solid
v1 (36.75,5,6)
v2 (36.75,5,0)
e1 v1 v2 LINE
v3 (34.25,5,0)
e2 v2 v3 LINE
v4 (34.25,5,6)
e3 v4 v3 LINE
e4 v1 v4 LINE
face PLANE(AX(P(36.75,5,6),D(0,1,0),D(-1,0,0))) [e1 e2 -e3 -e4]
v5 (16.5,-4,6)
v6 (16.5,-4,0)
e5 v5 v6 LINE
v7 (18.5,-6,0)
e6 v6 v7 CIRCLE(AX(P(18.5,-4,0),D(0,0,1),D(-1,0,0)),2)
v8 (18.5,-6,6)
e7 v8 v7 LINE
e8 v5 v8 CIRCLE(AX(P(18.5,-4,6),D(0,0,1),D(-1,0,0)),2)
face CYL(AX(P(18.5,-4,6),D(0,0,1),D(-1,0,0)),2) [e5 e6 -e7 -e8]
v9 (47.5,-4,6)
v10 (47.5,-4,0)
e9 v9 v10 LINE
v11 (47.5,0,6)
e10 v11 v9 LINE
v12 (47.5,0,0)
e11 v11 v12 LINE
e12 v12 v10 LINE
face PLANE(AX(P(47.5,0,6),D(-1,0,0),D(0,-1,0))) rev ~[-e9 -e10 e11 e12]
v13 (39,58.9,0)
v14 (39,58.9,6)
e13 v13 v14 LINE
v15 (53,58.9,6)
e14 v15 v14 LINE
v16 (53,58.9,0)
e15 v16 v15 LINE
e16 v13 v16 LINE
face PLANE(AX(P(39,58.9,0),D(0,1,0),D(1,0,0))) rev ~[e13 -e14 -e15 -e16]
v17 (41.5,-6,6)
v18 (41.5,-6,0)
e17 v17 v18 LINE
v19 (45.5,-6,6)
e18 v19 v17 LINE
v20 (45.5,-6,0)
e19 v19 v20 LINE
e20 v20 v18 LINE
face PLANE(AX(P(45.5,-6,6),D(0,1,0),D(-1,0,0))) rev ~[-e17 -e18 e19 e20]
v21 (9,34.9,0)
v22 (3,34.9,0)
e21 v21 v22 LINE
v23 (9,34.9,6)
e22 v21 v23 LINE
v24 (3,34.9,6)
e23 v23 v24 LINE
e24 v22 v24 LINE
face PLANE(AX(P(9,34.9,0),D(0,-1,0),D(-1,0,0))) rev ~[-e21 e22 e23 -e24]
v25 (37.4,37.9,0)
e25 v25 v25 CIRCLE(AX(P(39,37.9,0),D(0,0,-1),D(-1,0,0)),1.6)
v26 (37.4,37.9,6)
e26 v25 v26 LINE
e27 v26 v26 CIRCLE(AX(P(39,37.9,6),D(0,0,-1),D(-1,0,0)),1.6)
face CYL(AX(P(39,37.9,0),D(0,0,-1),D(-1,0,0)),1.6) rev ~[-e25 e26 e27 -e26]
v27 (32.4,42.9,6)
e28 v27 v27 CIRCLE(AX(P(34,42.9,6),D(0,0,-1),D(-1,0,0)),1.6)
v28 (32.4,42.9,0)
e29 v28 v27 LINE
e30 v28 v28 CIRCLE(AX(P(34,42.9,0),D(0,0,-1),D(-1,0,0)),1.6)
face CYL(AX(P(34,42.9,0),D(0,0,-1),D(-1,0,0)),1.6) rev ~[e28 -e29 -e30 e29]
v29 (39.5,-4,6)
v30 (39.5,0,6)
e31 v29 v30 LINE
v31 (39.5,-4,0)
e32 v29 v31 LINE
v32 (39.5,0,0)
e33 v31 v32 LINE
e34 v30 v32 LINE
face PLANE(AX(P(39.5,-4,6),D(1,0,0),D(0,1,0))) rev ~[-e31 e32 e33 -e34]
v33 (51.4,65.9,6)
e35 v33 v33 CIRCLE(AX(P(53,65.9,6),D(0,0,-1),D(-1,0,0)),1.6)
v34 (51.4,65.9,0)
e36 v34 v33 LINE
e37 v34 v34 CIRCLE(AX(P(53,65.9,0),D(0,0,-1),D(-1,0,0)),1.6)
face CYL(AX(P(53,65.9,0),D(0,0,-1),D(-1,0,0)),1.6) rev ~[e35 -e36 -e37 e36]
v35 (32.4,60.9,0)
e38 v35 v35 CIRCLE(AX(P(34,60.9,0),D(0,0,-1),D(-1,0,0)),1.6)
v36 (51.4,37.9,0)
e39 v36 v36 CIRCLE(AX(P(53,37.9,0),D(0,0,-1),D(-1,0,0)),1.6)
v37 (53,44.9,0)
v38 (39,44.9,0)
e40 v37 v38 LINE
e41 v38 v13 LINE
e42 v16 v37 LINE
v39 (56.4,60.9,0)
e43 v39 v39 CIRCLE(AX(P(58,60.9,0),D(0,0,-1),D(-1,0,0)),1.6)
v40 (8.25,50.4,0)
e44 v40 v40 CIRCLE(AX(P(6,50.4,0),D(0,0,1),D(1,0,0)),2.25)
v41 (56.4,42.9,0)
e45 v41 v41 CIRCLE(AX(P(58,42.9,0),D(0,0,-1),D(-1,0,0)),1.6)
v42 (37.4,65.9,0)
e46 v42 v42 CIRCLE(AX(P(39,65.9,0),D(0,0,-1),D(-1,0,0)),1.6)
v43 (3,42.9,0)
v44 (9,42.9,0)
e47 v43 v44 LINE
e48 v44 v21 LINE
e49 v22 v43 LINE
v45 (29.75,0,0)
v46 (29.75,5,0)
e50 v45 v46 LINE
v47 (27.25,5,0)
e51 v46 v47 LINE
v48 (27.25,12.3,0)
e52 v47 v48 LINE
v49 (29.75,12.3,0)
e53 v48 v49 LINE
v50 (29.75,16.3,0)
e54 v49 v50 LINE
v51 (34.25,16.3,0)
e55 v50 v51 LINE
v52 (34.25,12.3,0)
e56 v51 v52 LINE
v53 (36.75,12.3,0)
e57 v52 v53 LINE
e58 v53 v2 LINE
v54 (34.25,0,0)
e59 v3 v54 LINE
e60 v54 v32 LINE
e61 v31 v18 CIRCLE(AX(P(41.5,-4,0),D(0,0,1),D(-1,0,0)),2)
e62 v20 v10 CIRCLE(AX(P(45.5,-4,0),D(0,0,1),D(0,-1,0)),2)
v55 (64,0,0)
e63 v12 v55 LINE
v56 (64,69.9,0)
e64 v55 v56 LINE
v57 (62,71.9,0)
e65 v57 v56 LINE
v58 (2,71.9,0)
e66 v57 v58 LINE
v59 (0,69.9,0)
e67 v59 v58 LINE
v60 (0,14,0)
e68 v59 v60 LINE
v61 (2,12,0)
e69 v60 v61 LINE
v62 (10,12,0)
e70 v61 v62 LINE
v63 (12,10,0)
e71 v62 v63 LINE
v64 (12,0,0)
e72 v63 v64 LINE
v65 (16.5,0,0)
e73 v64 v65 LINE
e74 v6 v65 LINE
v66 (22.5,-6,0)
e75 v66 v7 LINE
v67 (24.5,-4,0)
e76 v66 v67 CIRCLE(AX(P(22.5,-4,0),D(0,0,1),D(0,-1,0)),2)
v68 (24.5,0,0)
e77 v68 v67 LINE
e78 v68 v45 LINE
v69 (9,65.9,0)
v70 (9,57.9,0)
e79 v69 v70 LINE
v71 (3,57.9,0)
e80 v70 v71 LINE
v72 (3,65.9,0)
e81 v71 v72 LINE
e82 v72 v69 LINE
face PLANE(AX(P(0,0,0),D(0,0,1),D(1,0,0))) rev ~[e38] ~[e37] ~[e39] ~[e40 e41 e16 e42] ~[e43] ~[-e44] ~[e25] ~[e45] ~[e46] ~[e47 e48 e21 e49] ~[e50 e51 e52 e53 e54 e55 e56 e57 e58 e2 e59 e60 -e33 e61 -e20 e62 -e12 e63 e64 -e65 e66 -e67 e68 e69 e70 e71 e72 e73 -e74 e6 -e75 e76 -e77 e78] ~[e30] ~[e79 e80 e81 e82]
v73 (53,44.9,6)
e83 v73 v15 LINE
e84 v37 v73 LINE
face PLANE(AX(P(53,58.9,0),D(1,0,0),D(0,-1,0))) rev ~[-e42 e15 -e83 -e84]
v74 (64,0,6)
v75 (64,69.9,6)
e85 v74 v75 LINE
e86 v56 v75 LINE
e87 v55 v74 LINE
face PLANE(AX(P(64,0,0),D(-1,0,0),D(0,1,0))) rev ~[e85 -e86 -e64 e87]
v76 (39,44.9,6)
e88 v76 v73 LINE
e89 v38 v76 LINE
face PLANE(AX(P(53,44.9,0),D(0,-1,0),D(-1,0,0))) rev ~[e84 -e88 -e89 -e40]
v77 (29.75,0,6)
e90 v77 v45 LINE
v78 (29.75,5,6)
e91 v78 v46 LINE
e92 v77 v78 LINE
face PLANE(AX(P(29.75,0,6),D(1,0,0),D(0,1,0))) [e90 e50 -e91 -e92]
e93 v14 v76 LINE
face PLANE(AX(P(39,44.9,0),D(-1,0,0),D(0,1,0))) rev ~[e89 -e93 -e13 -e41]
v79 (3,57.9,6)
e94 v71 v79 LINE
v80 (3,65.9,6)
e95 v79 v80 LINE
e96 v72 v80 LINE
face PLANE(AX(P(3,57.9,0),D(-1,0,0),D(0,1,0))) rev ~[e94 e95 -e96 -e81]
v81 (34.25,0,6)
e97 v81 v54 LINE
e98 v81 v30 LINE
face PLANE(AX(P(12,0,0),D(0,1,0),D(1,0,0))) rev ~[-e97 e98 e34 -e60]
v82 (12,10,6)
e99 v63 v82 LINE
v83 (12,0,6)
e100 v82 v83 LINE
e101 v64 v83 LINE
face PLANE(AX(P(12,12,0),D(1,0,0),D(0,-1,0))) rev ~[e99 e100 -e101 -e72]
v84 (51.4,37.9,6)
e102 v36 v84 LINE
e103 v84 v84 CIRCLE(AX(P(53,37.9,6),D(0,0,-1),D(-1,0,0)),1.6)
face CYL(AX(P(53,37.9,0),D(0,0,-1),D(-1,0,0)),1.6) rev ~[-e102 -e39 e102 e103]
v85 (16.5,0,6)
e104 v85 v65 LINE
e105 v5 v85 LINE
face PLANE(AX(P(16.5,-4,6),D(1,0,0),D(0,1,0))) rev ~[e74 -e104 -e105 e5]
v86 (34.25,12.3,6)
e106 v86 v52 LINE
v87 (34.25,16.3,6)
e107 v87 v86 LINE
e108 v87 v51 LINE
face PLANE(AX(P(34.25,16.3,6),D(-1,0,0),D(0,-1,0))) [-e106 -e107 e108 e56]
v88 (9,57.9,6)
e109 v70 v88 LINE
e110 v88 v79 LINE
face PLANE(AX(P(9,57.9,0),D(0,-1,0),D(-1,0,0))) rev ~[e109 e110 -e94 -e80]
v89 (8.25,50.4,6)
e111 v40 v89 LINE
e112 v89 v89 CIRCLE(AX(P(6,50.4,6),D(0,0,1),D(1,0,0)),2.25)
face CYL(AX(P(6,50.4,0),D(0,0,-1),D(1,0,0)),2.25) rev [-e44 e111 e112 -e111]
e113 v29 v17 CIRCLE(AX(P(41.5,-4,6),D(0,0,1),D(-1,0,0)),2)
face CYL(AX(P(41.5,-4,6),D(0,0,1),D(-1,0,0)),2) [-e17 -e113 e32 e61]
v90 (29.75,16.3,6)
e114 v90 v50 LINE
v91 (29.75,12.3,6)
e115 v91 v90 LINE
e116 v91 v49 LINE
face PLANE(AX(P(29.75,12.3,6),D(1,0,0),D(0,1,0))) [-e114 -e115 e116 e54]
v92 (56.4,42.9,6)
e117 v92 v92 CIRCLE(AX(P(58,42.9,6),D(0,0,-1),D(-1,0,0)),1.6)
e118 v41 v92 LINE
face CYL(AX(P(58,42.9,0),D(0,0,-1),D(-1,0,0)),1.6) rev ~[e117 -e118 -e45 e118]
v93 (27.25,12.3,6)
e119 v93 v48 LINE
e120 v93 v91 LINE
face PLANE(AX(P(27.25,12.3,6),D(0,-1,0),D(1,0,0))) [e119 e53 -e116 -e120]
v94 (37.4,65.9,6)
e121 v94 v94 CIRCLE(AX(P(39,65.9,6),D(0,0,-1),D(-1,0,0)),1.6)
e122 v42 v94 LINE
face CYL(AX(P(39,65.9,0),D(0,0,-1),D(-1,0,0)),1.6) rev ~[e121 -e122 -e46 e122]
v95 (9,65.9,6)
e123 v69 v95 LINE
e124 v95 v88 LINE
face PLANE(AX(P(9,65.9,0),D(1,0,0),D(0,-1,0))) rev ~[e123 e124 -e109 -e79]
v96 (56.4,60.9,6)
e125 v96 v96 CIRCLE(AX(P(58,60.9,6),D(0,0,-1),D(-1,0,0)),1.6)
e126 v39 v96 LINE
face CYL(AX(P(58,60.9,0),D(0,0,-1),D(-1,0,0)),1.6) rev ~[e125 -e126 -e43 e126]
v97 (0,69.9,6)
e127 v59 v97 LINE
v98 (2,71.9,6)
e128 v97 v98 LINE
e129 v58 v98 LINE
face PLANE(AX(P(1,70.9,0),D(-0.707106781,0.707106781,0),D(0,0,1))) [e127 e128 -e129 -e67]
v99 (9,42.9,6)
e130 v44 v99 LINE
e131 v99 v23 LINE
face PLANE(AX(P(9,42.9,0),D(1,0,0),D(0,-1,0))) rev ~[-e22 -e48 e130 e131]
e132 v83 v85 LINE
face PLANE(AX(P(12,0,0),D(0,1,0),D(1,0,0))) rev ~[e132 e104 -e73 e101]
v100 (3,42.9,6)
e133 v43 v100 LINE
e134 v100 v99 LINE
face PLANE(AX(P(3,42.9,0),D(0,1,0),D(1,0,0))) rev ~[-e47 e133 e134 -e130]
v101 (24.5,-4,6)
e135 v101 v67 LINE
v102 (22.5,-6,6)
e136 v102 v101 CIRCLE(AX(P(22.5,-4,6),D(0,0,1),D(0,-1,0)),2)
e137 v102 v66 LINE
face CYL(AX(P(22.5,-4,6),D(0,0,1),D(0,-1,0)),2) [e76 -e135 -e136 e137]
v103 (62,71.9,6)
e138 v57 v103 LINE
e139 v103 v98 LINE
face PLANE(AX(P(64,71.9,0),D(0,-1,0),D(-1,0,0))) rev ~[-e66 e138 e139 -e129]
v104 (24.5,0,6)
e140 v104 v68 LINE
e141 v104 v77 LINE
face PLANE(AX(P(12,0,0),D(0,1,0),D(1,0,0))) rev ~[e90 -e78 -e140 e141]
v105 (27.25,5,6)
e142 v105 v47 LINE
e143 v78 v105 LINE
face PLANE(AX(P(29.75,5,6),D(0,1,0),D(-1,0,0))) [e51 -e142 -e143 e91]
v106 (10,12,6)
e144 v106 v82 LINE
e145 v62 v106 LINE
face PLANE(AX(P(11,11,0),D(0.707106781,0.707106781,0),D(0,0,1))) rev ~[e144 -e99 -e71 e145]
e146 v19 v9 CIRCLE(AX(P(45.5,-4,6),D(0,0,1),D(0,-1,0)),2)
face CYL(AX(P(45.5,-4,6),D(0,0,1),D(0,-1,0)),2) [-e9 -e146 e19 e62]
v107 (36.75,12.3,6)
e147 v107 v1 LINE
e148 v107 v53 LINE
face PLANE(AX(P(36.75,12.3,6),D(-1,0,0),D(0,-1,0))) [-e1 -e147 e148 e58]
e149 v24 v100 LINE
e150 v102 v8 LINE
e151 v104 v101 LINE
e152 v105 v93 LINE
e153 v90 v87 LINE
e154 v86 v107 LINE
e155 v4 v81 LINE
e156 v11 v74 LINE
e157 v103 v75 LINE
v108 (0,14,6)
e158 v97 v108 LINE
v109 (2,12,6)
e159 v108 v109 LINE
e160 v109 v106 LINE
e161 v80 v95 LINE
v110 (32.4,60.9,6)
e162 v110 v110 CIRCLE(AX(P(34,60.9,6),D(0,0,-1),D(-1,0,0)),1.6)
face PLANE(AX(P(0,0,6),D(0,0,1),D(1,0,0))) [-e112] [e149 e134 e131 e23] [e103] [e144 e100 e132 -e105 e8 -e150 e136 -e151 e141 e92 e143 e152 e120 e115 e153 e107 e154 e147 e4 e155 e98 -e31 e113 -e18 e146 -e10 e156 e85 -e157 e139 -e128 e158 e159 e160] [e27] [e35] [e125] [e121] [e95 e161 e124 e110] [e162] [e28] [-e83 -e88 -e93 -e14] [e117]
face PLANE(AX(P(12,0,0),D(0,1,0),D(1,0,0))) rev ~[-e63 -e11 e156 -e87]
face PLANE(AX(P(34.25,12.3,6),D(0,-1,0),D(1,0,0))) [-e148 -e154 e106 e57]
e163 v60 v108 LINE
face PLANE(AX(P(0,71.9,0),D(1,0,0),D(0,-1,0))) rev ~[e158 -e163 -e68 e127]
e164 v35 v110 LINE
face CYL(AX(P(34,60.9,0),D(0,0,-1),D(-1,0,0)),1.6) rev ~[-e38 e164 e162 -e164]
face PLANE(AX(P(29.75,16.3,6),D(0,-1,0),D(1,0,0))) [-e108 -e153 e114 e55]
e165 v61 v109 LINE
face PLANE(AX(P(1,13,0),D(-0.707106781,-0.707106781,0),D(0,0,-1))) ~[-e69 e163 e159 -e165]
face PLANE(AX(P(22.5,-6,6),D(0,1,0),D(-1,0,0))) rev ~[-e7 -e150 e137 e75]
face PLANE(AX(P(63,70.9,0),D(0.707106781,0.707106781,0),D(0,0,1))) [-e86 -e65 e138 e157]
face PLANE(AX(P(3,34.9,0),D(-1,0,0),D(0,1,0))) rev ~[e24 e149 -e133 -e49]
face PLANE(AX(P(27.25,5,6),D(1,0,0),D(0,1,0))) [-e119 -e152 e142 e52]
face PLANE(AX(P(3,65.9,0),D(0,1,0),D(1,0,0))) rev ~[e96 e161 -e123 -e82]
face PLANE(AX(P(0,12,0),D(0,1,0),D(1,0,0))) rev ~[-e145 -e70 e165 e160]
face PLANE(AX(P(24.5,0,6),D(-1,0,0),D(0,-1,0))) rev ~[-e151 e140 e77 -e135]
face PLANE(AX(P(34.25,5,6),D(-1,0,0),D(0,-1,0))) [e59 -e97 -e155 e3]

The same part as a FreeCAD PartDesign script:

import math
import FreeCAD as App
import Part
import Sketcher

V = App.Vector


def edges_at(feature, points):
    """Names of the edges that pass closest to the given points."""
    edges = feature.Shape.Edges
    near = lambda p: min(range(len(edges)), key=lambda i: edges[i].distToShape(Part.Vertex(*p))[0])
    return sorted({f"Edge{near(p) + 1}" for p in points})


def add_polygon(sketch, points):
    """Adds a closed chain of lines whose ends are joined by coincident constraints."""
    first, n = sketch.GeometryCount, len(points)
    for a, b in zip(points, points[1:] + points[:1]):
        sketch.addGeometry(Part.LineSegment(App.Vector(*a, 0), App.Vector(*b, 0)), False)
    for i in range(n):
        sketch.addConstraint(Sketcher.Constraint("Coincident", first + i, 2, first + (i + 1) % n, 1))

doc = App.newDocument("Part")
body = doc.addObject("PartDesign::Body", "Body")

sketch1 = body.newObject("Sketcher::SketchObject", "Sketch")
sketch1.AttachmentSupport = (doc.getObject("XY_Plane"), [""])
sketch1.MapMode = "FlatFace"
add_polygon(sketch1, [(12, 12), (12, 0), (64, 0), (64, 71.9), (0, 71.9), (0, 12)])
add_polygon(sketch1, [(3, 34.9), (3, 42.9), (9, 42.9), (9, 34.9)])
sketch1.addGeometry(Part.Circle(V(6, 50.4, 0), V(0, 0, 1), 2.25), False)
add_polygon(sketch1, [(3, 57.9), (3, 65.9), (9, 65.9), (9, 57.9)])
sketch1.addConstraint([
    Sketcher.Constraint("Vertical", 0),
    Sketcher.Constraint("Horizontal", 1),
    Sketcher.Constraint("Vertical", 2),
    Sketcher.Constraint("Horizontal", 3),
    Sketcher.Constraint("Vertical", 4),
    Sketcher.Constraint("Horizontal", 5),
    Sketcher.Constraint("Vertical", 6),
    Sketcher.Constraint("Horizontal", 7),
    Sketcher.Constraint("Vertical", 8),
    Sketcher.Constraint("Horizontal", 9),
    Sketcher.Constraint("Vertical", 11),
    Sketcher.Constraint("Horizontal", 12),
    Sketcher.Constraint("Vertical", 13),
    Sketcher.Constraint("Horizontal", 14),
    Sketcher.Constraint("PointOnObject", 0, 2, -1),
    Sketcher.Constraint("PointOnObject", 3, 2, -2),
    Sketcher.Constraint("Vertical", 9, 2, 11, 2),
    Sketcher.Constraint("Vertical", 8, 2, 12, 2),
    Sketcher.Constraint("Equal", 5, 0),
    Sketcher.Constraint("Equal", 8, 11),
    Sketcher.Constraint("Diameter", 10, 4.5),
    Sketcher.Constraint("DistanceX", 1, 1, 1, 2, 52.0),
    Sketcher.Constraint("DistanceX", 3, 2, 3, 1, 64.0),
    Sketcher.Constraint("DistanceX", 7, 1, 7, 2, 6.0),
    Sketcher.Constraint("DistanceY", 6, 1, 6, 2, 8.0),
    Sketcher.Constraint("DistanceY", 2, 1, 2, 2, 71.9),
    Sketcher.Constraint("DistanceX", -1, 1, 10, 3, 6.0),
    Sketcher.Constraint("DistanceX", -1, 1, 6, 2, 3.0),
    Sketcher.Constraint("DistanceY", 11, 2, 3, 2, 6.0),
    Sketcher.Constraint("DistanceY", 7, 2, 13, 2, 15.0),
    Sketcher.Constraint("DistanceY", -1, 1, 10, 3, 50.4),
])
pad1 = body.newObject("PartDesign::Pad", "Pad")
pad1.Profile = sketch1
pad1.Length = 6

sketch2 = body.newObject("Sketcher::SketchObject", "Sketch001")
sketch2.AttachmentSupport = (doc.getObject("XY_Plane"), [""])
sketch2.MapMode = "FlatFace"
sketch2.AttachmentOffset = App.Placement(V(0, 0, 6), App.Rotation())
add_polygon(sketch2, [(29.75, 5), (29.75, 0), (34.25, 0), (34.25, 5), (36.75, 5), (36.75, 12.3), (34.25, 12.3), (34.25, 16.3), (29.75, 16.3), (29.75, 12.3), (27.25, 12.3), (27.25, 5)])
sketch2.addConstraint([
    Sketcher.Constraint("Vertical", 0),
    Sketcher.Constraint("Horizontal", 1),
    Sketcher.Constraint("Vertical", 2),
    Sketcher.Constraint("Horizontal", 3),
    Sketcher.Constraint("Vertical", 4),
    Sketcher.Constraint("Horizontal", 5),
    Sketcher.Constraint("Vertical", 6),
    Sketcher.Constraint("Horizontal", 7),
    Sketcher.Constraint("Vertical", 8),
    Sketcher.Constraint("Horizontal", 9),
    Sketcher.Constraint("Vertical", 10),
    Sketcher.Constraint("Horizontal", 11),
    Sketcher.Constraint("PointOnObject", 0, 2, -1),
    Sketcher.Constraint("Horizontal", 5, 2, 8, 2),
    Sketcher.Constraint("Horizontal", 3, 2, 10, 2),
    Sketcher.Constraint("Vertical", 2, 2, 5, 2),
    Sketcher.Constraint("Vertical", 0, 2, 7, 2),
    Sketcher.Constraint("Equal", 5, 9),
    Sketcher.Constraint("DistanceY", 0, 2, 0, 1, 5.0),
    Sketcher.Constraint("DistanceY", 6, 1, 6, 2, 4.0),
    Sketcher.Constraint("DistanceX", 1, 1, 1, 2, 4.5),
    Sketcher.Constraint("DistanceX", 3, 1, 3, 2, 2.5),
    Sketcher.Constraint("DistanceY", 4, 1, 4, 2, 7.3),
    Sketcher.Constraint("DistanceX", -1, 1, 0, 2, 29.75),
])
pocket1 = body.newObject("PartDesign::Pocket", "Pocket")
pocket1.Profile = sketch2
pocket1.Length = 6

sketch3 = body.newObject("Sketcher::SketchObject", "Sketch002")
sketch3.AttachmentSupport = (doc.getObject("XY_Plane"), [""])
sketch3.MapMode = "FlatFace"
sketch3.AttachmentOffset = App.Placement(V(0, 0, 6), App.Rotation())
sketch3.addGeometry([
    Part.LineSegment(V(47.5, 0, 0), V(39.5, 0, 0)),
    Part.LineSegment(V(39.5, 0, 0), V(39.5, -4, 0)),
    Part.ArcOfCircle(Part.Circle(V(41.5, -4, 0), V(0, 0, 1), 2), math.radians(180), math.radians(270)),
    Part.LineSegment(V(41.5, -6, 0), V(45.5, -6, 0)),
    Part.ArcOfCircle(Part.Circle(V(45.5, -4, 0), V(0, 0, 1), 2), math.radians(-90), math.radians(0)),
    Part.LineSegment(V(47.5, -4, 0), V(47.5, 0, 0)),
    Part.LineSegment(V(24.5, 0, 0), V(16.5, 0, 0)),
    Part.LineSegment(V(16.5, 0, 0), V(16.5, -4, 0)),
    Part.ArcOfCircle(Part.Circle(V(18.5, -4, 0), V(0, 0, 1), 2), math.radians(180), math.radians(270)),
    Part.LineSegment(V(18.5, -6, 0), V(22.5, -6, 0)),
    Part.ArcOfCircle(Part.Circle(V(22.5, -4, 0), V(0, 0, 1), 2), math.radians(-90), math.radians(0)),
    Part.LineSegment(V(24.5, -4, 0), V(24.5, 0, 0)),
], False)
sketch3.addConstraint([
    Sketcher.Constraint("Coincident", 0, 2, 1, 1),
    Sketcher.Constraint("Tangent", 1, 2, 2, 1),
    Sketcher.Constraint("Tangent", 2, 2, 3, 1),
    Sketcher.Constraint("Tangent", 3, 2, 4, 1),
    Sketcher.Constraint("Tangent", 4, 2, 5, 1),
    Sketcher.Constraint("Coincident", 5, 2, 0, 1),
    Sketcher.Constraint("Coincident", 6, 2, 7, 1),
    Sketcher.Constraint("Tangent", 7, 2, 8, 1),
    Sketcher.Constraint("Tangent", 8, 2, 9, 1),
    Sketcher.Constraint("Tangent", 9, 2, 10, 1),
    Sketcher.Constraint("Tangent", 10, 2, 11, 1),
    Sketcher.Constraint("Coincident", 11, 2, 6, 1),
    Sketcher.Constraint("Horizontal", 0),
    Sketcher.Constraint("Vertical", 1),
    Sketcher.Constraint("Horizontal", 3),
    Sketcher.Constraint("Vertical", 5),
    Sketcher.Constraint("Horizontal", 6),
    Sketcher.Constraint("Vertical", 7),
    Sketcher.Constraint("Horizontal", 9),
    Sketcher.Constraint("Vertical", 11),
    Sketcher.Constraint("Equal", 2, 4),
    Sketcher.Constraint("Equal", 4, 8),
    Sketcher.Constraint("Equal", 8, 10),
    Sketcher.Constraint("PointOnObject", 0, 2, -1),
    Sketcher.Constraint("PointOnObject", 6, 2, -1),
    Sketcher.Constraint("Horizontal", 4, 3, 8, 3),
    Sketcher.Constraint("Equal", 0, 6),
    Sketcher.Constraint("Equal", 9, 1),
    Sketcher.Constraint("Radius", 2, 2.0),
    Sketcher.Constraint("DistanceX", 0, 2, 0, 1, 8.0),
    Sketcher.Constraint("DistanceX", 8, 3, 2, 3, 23.0),
    Sketcher.Constraint("DistanceX", -1, 1, 2, 3, 41.5),
])
pad2 = body.newObject("PartDesign::Pad", "Pad001")
pad2.Profile = sketch3
pad2.Length = 6
pad2.Reversed = True
doc.recompute()

chamfer = body.newObject("PartDesign::Chamfer", "Chamfer")
chamfer.Base = (pad2, edges_at(pad2, [(0, 71.9, 3), (64, 71.9, 3)]))
chamfer.Size = 2

sketch4 = body.newObject("Sketcher::SketchObject", "Sketch003")
sketch4.AttachmentSupport = (doc.getObject("XY_Plane"), [""])
sketch4.MapMode = "FlatFace"
add_polygon(sketch4, [(39, 44.9), (39, 58.9), (53, 58.9), (53, 44.9)])
sketch4.addGeometry(Part.Circle(V(58, 60.9, 0), V(0, 0, 1), 1.6), False)
sketch4.addGeometry(Part.Circle(V(58, 42.9, 0), V(0, 0, 1), 1.6), False)
sketch4.addGeometry(Part.Circle(V(53, 37.9, 0), V(0, 0, 1), 1.6), False)
sketch4.addGeometry(Part.Circle(V(39, 37.9, 0), V(0, 0, 1), 1.6), False)
sketch4.addGeometry(Part.Circle(V(34, 42.9, 0), V(0, 0, 1), 1.6), False)
sketch4.addGeometry(Part.Circle(V(34, 60.9, 0), V(0, 0, 1), 1.6), False)
sketch4.addGeometry(Part.Circle(V(39, 65.9, 0), V(0, 0, 1), 1.6), False)
sketch4.addGeometry(Part.Circle(V(53, 65.9, 0), V(0, 0, 1), 1.6), False)
sketch4.addConstraint([
    Sketcher.Constraint("Vertical", 0),
    Sketcher.Constraint("Horizontal", 1),
    Sketcher.Constraint("Vertical", 2),
    Sketcher.Constraint("Horizontal", 3),
    Sketcher.Constraint("Equal", 4, 5),
    Sketcher.Constraint("Equal", 5, 6),
    Sketcher.Constraint("Equal", 6, 7),
    Sketcher.Constraint("Equal", 7, 8),
    Sketcher.Constraint("Equal", 8, 9),
    Sketcher.Constraint("Equal", 9, 10),
    Sketcher.Constraint("Equal", 10, 11),
    Sketcher.Constraint("Horizontal", 6, 3, 7, 3),
    Sketcher.Constraint("Horizontal", 5, 3, 8, 3),
    Sketcher.Constraint("Horizontal", 4, 3, 9, 3),
    Sketcher.Constraint("Horizontal", 10, 3, 11, 3),
    Sketcher.Constraint("Vertical", 4, 3, 5, 3),
    Sketcher.Constraint("Vertical", 8, 3, 9, 3),
    Sketcher.Constraint("Vertical", 7, 3, 10, 3),
    Sketcher.Constraint("Vertical", 6, 3, 11, 3),
    Sketcher.Constraint("Vertical", 10, 3, 0, 2),
    Sketcher.Constraint("Vertical", 11, 3, 1, 2),
    Sketcher.Constraint("Equal", 3, 0),
    Sketcher.Constraint("Diameter", 4, 3.2),
    Sketcher.Constraint("DistanceX", 1, 1, 1, 2, 14.0),
    Sketcher.Constraint("DistanceX", 6, 3, 5, 3, 5.0),
    Sketcher.Constraint("DistanceY", 6, 3, 5, 3, 5.0),
    Sketcher.Constraint("DistanceX", 8, 3, 7, 3, 5.0),
    Sketcher.Constraint("DistanceY", 9, 3, 10, 3, 5.0),
    Sketcher.Constraint("DistanceY", 0, 2, 10, 3, 7.0),
    Sketcher.Constraint("DistanceY", 6, 3, 2, 2, 7.0),
    Sketcher.Constraint("DistanceX", -1, 1, 4, 3, 58.0),
    Sketcher.Constraint("DistanceY", -1, 1, 4, 3, 60.9),
])
pocket2 = body.newObject("PartDesign::Pocket", "Pocket001")
pocket2.Profile = sketch4
pocket2.Type = "ThroughAll"
pocket2.Reversed = True
doc.recompute()

chamfer2 = body.newObject("PartDesign::Chamfer", "Chamfer001")
chamfer2.Base = (pocket2, edges_at(pocket2, [(0, 12, 3), (12, 12, 3)]))
chamfer2.Size = 2

doc.recompute()
